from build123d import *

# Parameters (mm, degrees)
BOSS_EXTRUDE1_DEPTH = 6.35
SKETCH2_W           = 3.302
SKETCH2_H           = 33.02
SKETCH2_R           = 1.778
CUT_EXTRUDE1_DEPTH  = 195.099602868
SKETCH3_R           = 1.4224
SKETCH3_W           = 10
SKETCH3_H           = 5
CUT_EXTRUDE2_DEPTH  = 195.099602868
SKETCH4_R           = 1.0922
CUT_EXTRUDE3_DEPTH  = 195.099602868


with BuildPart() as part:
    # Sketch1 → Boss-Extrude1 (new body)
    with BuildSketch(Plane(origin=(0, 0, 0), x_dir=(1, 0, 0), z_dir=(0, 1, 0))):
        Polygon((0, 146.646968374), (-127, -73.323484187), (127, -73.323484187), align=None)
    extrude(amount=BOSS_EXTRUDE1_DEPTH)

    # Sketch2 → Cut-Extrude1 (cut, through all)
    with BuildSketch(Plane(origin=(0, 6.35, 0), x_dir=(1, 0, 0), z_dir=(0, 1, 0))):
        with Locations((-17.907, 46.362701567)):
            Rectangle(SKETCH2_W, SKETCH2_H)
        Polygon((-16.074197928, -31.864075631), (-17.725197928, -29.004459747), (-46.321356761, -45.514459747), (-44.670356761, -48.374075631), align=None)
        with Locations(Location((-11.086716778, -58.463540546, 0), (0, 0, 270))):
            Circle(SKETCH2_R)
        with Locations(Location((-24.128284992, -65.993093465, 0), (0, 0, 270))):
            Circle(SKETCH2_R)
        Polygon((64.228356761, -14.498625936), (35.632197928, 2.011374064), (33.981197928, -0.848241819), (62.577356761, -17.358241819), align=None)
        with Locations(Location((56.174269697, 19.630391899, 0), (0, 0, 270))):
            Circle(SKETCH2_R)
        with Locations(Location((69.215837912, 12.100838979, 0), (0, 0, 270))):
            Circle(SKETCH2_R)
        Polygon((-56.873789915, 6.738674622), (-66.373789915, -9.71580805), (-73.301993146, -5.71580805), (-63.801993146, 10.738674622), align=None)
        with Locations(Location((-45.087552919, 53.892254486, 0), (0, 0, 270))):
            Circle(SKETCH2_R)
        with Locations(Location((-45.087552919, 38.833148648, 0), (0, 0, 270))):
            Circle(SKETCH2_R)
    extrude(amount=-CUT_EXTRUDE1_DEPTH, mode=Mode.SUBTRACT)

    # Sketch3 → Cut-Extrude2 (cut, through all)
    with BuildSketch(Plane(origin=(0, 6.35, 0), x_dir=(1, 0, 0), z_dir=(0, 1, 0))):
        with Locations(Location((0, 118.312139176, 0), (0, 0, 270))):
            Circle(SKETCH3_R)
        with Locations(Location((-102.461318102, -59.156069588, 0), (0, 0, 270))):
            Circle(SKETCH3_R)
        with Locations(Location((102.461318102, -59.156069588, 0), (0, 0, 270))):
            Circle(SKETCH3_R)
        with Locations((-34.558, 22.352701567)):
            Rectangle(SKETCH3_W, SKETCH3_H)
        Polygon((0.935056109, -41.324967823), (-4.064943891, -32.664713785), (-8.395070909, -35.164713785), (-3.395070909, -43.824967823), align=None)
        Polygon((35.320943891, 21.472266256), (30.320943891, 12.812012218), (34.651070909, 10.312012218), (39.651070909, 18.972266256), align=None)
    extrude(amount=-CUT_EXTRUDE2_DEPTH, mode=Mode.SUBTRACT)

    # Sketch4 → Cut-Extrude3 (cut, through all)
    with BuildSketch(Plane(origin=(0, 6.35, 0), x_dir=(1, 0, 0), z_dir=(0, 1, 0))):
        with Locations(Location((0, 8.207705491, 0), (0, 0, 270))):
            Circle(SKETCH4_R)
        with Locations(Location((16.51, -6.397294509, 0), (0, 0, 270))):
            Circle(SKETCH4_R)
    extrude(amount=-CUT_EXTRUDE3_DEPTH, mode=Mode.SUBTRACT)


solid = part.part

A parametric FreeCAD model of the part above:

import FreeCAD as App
import Part
import Sketcher
from FreeCAD import Vector
Q = App.Units.Quantity


def add_polygon(sketch, points):
    """Adds a closed chain of lines whose ends are joined by coincident constraints."""
    first, n = sketch.GeometryCount, len(points)
    for a, b in zip(points, points[1:] + points[:1]):
        sketch.addGeometry(Part.LineSegment(App.Vector(*a, 0), App.Vector(*b, 0)), False)
    for i in range(n):
        sketch.addConstraint(Sketcher.Constraint("Coincident", first + i, 2, first + (i + 1) % n, 1))

doc = App.newDocument("Part")
params = doc.addObject("Spreadsheet::Sheet", "Params")
for row, (alias, value) in enumerate([
    ("sketch1_width", "10 in"),
    ("sketch1_length", "10 in"),
    ("pad1_length", "0.25 in"),
    ("sketch2_diameter", "0.14 in"),
    ("sketch2_height", "1.3 in"),
    ("sketch2_length", "1.3 in"),
    ("sketch2_width", "0.13 in"),
    ("sketch2_length2", "0.13 in"),
    ("sketch3_diameter", "0.112 in"),
    ("sketch4_diameter", "0.086 in"),
], start=1):
    params.set(f"A{row}", alias)
    params.set(f"B{row}", "=" + value)
    params.setAlias(f"B{row}", alias)

body = doc.addObject("PartDesign::Body", "Body")

sketch1 = doc.addObject("Sketcher::SketchObject", "Sketch")
body.addObject(sketch1)
sketch1.AttachmentSupport = (doc.XZ_Plane, [""])
sketch1.MapMode = "FlatFace"
add_polygon(sketch1, [(0, -146.646968), (-127, 73.323484), (127, 73.323484)])
sketch1.addConstraint(Sketcher.Constraint("Horizontal", 1))
sketch1.addConstraint(Sketcher.Constraint("PointOnObject", 2, 2, -2))
sketch1.addConstraint(Sketcher.Constraint("Equal", 0, 2))
sketch1.addConstraint(Sketcher.Constraint("DistanceX", 1, 1, 1, 2, Q("10 in")))
sketch1.addConstraint(Sketcher.Constraint("Distance", 0, Q("10 in")))
sketch1.addConstraint(Sketcher.Constraint("DistanceY", 2, 2, -1, 1, Q("146.646968 mm")))
sketch1.setExpression("Constraints[6]", "Params.sketch1_width")
sketch1.setExpression("Constraints[7]", "Params.sketch1_length")
pad1 = doc.addObject("PartDesign::Pad", "Pad")
body.addObject(pad1)
pad1.Profile = sketch1
pad1.setExpression("Length", "Params.pad1_length")
pad1.Reversed = True

sketch2 = doc.addObject("Sketcher::SketchObject", "Sketch001")
body.addObject(sketch2)
sketch2.AttachmentSupport = (doc.XZ_Plane, [""])
sketch2.MapMode = "FlatFace"
sketch2.AttachmentOffset = App.Placement(Vector(0, 0, -0.25 * 25.4), App.Rotation())
add_polygon(sketch2, [(-19.558, -62.872702), (-19.558, -29.852702), (-16.256, -29.852702), (-16.256, -62.872702)])
add_polygon(sketch2, [(-16.074198, 31.864076), (-17.725198, 29.00446), (-46.321357, 45.51446), (-44.670357, 48.374076)])
sketch2.addGeometry(Part.Circle(Vector(-11.086717, 58.463541, 0), Vector(0, 0, 1), 1.778), False)
sketch2.addGeometry(Part.Circle(Vector(-24.128285, 65.993093, 0), Vector(0, 0, 1), 1.778), False)
add_polygon(sketch2, [(64.228357, 14.498626), (35.632198, -2.011374), (33.981198, 0.848242), (62.577357, 17.358242)])
sketch2.addGeometry(Part.Circle(Vector(56.17427, -19.630392, 0), Vector(0, 0, 1), 1.778), False)
sketch2.addGeometry(Part.Circle(Vector(69.215838, -12.100839, 0), Vector(0, 0, 1), 1.778), False)
add_polygon(sketch2, [(-66.37379, 9.715808), (-56.87379, -6.738675), (-63.801993, -10.738675), (-73.301993, 5.715808)])
sketch2.addGeometry(Part.Circle(Vector(-45.087553, -53.892254, 0), Vector(0, 0, 1), 1.778), False)
sketch2.addGeometry(Part.Circle(Vector(-45.087553, -38.833149, 0), Vector(0, 0, 1), 1.778), False)
sketch2.addConstraint(Sketcher.Constraint("Vertical", 0))
sketch2.addConstraint(Sketcher.Constraint("Horizontal", 1))
sketch2.addConstraint(Sketcher.Constraint("Vertical", 2))
sketch2.addConstraint(Sketcher.Constraint("Horizontal", 3))
sketch2.addConstraint(Sketcher.Constraint("Equal", 8, 9))
sketch2.addConstraint(Sketcher.Constraint("Equal", 9, 14))
sketch2.addConstraint(Sketcher.Constraint("Equal", 14, 15))
sketch2.addConstraint(Sketcher.Constraint("Equal", 15, 20))
sketch2.addConstraint(Sketcher.Constraint("Equal", 20, 21))
sketch2.addConstraint(Sketcher.Constraint("Perpendicular", 4, 5))
sketch2.addConstraint(Sketcher.Constraint("Perpendicular", 5, 6))
sketch2.addConstraint(Sketcher.Constraint("Perpendicular", 6, 7))
sketch2.addConstraint(Sketcher.Constraint("Perpendicular", 10, 11))
sketch2.addConstraint(Sketcher.Constraint("Perpendicular", 11, 12))
sketch2.addConstraint(Sketcher.Constraint("Perpendicular", 12, 13))
sketch2.addConstraint(Sketcher.Constraint("Parallel", 13, 16))
sketch2.addConstraint(Sketcher.Constraint("Perpendicular", 16, 17))
sketch2.addConstraint(Sketcher.Constraint("Perpendicular", 17, 18))
sketch2.addConstraint(Sketcher.Constraint("Perpendicular", 18, 19))
sketch2.addConstraint(Sketcher.Constraint("Vertical", 20, 3, 21, 3))
sketch2.addConstraint(Sketcher.Constraint("Equal", 7, 10))
sketch2.addConstraint(Sketcher.Constraint("Equal", 6, 11))
sketch2.addConstraint(Sketcher.Constraint("Diameter", 8, Q("0.14 in")))
sketch2.addConstraint(Sketcher.Constraint("DistanceY", 0, 1, 0, 2, Q("1.3 in")))
sketch2.addConstraint(Sketcher.Constraint("Angle", 4, Q("-120 deg")))
sketch2.addConstraint(Sketcher.Constraint("Angle", 10, Q("-150 deg")))
sketch2.addConstraint(Sketcher.Constraint("Distance", 5, Q("1.3 in")))
sketch2.addConstraint(Sketcher.Constraint("DistanceX", 1, 1, 1, 2, Q("0.13 in")))
sketch2.addConstraint(Sketcher.Constraint("Distance", 4, Q("0.13 in")))
sketch2.addConstraint(Sketcher.Constraint("DistanceX", 0, 2, -1, 1, Q("0.77 in")))
sketch2.addConstraint(Sketcher.Constraint("Distance", 16, Q("19 mm")))
sketch2.addConstraint(Sketcher.Constraint("Distance", 17, Q("8 mm")))
sketch2.addConstraint(Sketcher.Constraint("DistanceY", 0, 2, -1, 1, Q("29.852702 mm")))
sketch2.addConstraint(Sketcher.Constraint("DistanceY", -1, 1, 8, 3, Q("58.463541 mm")))
sketch2.addConstraint(Sketcher.Constraint("DistanceX", -1, 1, 14, 3, Q("56.17427 mm")))
sketch2.addConstraint(Sketcher.Constraint("DistanceY", 14, 3, -1, 1, Q("19.630392 mm")))
sketch2.addConstraint(Sketcher.Constraint("DistanceY", 15, 3, -1, 1, Q("12.100839 mm")))
sketch2.addConstraint(Sketcher.Constraint("DistanceY", 21, 3, -1, 1, Q("38.833149 mm")))
sketch2.addConstraint(Sketcher.Constraint("DistanceY", -1, 1, 4, 2, Q("29.00446 mm")))
sketch2.addConstraint(Sketcher.Constraint("DistanceY", -1, 1, 11, 2, Q("0.848242 mm")))
sketch2.addConstraint(Sketcher.Constraint("DistanceX", 16, 2, -1, 1, Q("56.87379 mm")))
sketch2.addConstraint(Sketcher.Constraint("DistanceY", -1, 1, 18, 2, Q("5.715808 mm")))
sketch2.addConstraint(Sketcher.Constraint("DistanceX", 9, 3, 8, 3, Q("13.041568 mm")))
sketch2.addConstraint(Sketcher.Constraint("DistanceX", 14, 3, 15, 3, Q("13.041568 mm")))
sketch2.addConstraint(Sketcher.Constraint("DistanceX", 20, 3, 15, 3, Q("114.303391 mm")))
sketch2.addConstraint(Sketcher.Constraint("DistanceX", 4, 2, 8, 3, Q("6.638481 mm")))
sketch2.addConstraint(Sketcher.Constraint("DistanceX", 10, 2, 14, 3, Q("20.542072 mm")))
sketch2.addConstraint(Sketcher.Constraint("DistanceY", 20, 3, 16, 2, Q("47.15358 mm")))
sketch2.addConstraint(Sketcher.Constraint("DistanceX", 16, 2, 4, 2, Q("39.148592 mm")))
sketch2.addConstraint(Sketcher.Constraint("DistanceY", -1, 1, 9, 3, Q("65.993093 mm")))
sketch2.setExpression("Constraints[38]", "Params.sketch2_diameter")
sketch2.setExpression("Constraints[39]", "Params.sketch2_height")
sketch2.setExpression("Constraints[42]", "Params.sketch2_length")
sketch2.setExpression("Constraints[43]", "Params.sketch2_width")
sketch2.setExpression("Constraints[44]", "Params.sketch2_length2")
pocket1 = doc.addObject("PartDesign::Pocket", "Pocket")
body.addObject(pocket1)
pocket1.Profile = sketch2
pocket1.Type = "ThroughAll"
pocket1.Reversed = True

sketch3 = doc.addObject("Sketcher::SketchObject", "Sketch002")
body.addObject(sketch3)
sketch3.AttachmentSupport = (doc.XZ_Plane, [""])
sketch3.MapMode = "FlatFace"
sketch3.AttachmentOffset = App.Placement(Vector(0, 0, -0.25 * 25.4), App.Rotation())
sketch3.addGeometry(Part.Circle(Vector(0, -118.312139, 0), Vector(0, 0, 1), 1.4224), False)
sketch3.addGeometry(Part.Circle(Vector(-102.461318, 59.15607, 0), Vector(0, 0, 1), 1.4224), False)
sketch3.addGeometry(Part.Circle(Vector(102.461318, 59.15607, 0), Vector(0, 0, 1), 1.4224), False)
add_polygon(sketch3, [(-39.558, -24.852702), (-39.558, -19.852702), (-29.558, -19.852702), (-29.558, -24.852702)])
add_polygon(sketch3, [(0.935056, 41.324968), (-4.064944, 32.664714), (-8.395071, 35.164714), (-3.395071, 43.824968)])
add_polygon(sketch3, [(35.320944, -21.472266), (30.320944, -12.812012), (34.651071, -10.312012), (39.651071, -18.972266)])
sketch3.addConstraint(Sketcher.Constraint("Vertical", 3))
sketch3.addConstraint(Sketcher.Constraint("Horizontal", 4))
sketch3.addConstraint(Sketcher.Constraint("Vertical", 5))
sketch3.addConstraint(Sketcher.Constraint("Horizontal", 6))
sketch3.addConstraint(Sketcher.Constraint("Equal", 0, 1))
sketch3.addConstraint(Sketcher.Constraint("Equal", 1, 2))
sketch3.addConstraint(Sketcher.Constraint("Symmetric", 1, 3, 2, 3, -2))
sketch3.addConstraint(Sketcher.Constraint("PointOnObject", 0, 3, -2))
sketch3.addConstraint(Sketcher.Constraint("Perpendicular", 7, 8))
sketch3.addConstraint(Sketcher.Constraint("Perpendicular", 8, 9))
sketch3.addConstraint(Sketcher.Constraint("Perpendicular", 9, 10))
sketch3.addConstraint(Sketcher.Constraint("Perpendicular", 11, 12))
sketch3.addConstraint(Sketcher.Constraint("Perpendicular", 12, 13))
sketch3.addConstraint(Sketcher.Constraint("Perpendicular", 13, 14))
sketch3.addConstraint(Sketcher.Constraint("Equal", 9, 11))
sketch3.addConstraint(Sketcher.Constraint("Equal", 10, 12))
sketch3.addConstraint(Sketcher.Constraint("Diameter", 0, Q("0.112 in")))
sketch3.addConstraint(Sketcher.Constraint("Angle", 7, Q("-120 deg")))
sketch3.addConstraint(Sketcher.Constraint("Angle", 11, Q("120 deg")))
sketch3.addConstraint(Sketcher.Constraint("DistanceX", 4, 1, 4, 2, Q("10 mm")))
sketch3.addConstraint(Sketcher.Constraint("DistanceY", 3, 1, 3, 2, Q("5 mm")))
sketch3.addConstraint(Sketcher.Constraint("Distance", 7, Q("10 mm")))
sketch3.addConstraint(Sketcher.Constraint("Distance", 8, Q("5 mm")))
sketch3.addConstraint(Sketcher.Constraint("DistanceX", 3, 2, -1, 1, Q("39.558 mm")))
sketch3.addConstraint(Sketcher.Constraint("DistanceY", 3, 2, -1, 1, Q("19.852702 mm")))
sketch3.addConstraint(Sketcher.Constraint("DistanceY", 0, 3, -1, 1, Q("118.312139 mm")))
sketch3.addConstraint(Sketcher.Constraint("DistanceX", 1, 3, -1, 1, Q("102.461318 mm")))
sketch3.addConstraint(Sketcher.Constraint("DistanceY", -1, 1, 1, 3, Q("59.15607 mm")))
sketch3.addConstraint(Sketcher.Constraint("DistanceX", 8, 2, -1, 1, Q("8.395071 mm")))
sketch3.addConstraint(Sketcher.Constraint("DistanceX", -1, 1, 12, 2, Q("34.651071 mm")))
sketch3.addConstraint(Sketcher.Constraint("DistanceY", 4, 2, 9, 2, Q("63.677669 mm")))
sketch3.addConstraint(Sketcher.Constraint("DistanceY", 4, 2, 11, 2, Q("7.040689 mm")))
sketch3.setExpression("Constraints[28]", "Params.sketch3_diameter")
pocket2 = doc.addObject("PartDesign::Pocket", "Pocket001")
body.addObject(pocket2)
pocket2.Profile = sketch3
pocket2.Type = "ThroughAll"
pocket2.Reversed = True

sketch4 = doc.addObject("Sketcher::SketchObject", "Sketch003")
body.addObject(sketch4)
sketch4.AttachmentSupport = (doc.XZ_Plane, [""])
sketch4.MapMode = "FlatFace"
sketch4.AttachmentOffset = App.Placement(Vector(0, 0, -0.25 * 25.4), App.Rotation())
sketch4.addGeometry(Part.Circle(Vector(0, -8.207705, 0), Vector(0, 0, 1), 1.0922), False)
sketch4.addGeometry(Part.Circle(Vector(16.51, 6.397295, 0), Vector(0, 0, 1), 1.0922), False)
sketch4.addConstraint(Sketcher.Constraint("Equal", 0, 1))
sketch4.addConstraint(Sketcher.Constraint("PointOnObject", 0, 3, -2))
sketch4.addConstraint(Sketcher.Constraint("Diameter", 0, Q("0.086 in")))
sketch4.addConstraint(Sketcher.Constraint("DistanceX", -1, 1, 1, 3, Q("0.65 in")))
sketch4.addConstraint(Sketcher.Constraint("DistanceY", 0, 3, 1, 3, Q("0.575 in")))
sketch4.addConstraint(Sketcher.Constraint("DistanceY", 0, 3, -1, 1, Q("8.207705 mm")))
sketch4.setExpression("Constraints[2]", "Params.sketch4_diameter")
pocket3 = doc.addObject("PartDesign::Pocket", "Pocket002")
body.addObject(pocket3)
pocket3.Profile = sketch4
pocket3.Type = "ThroughAll"
pocket3.Reversed = True

doc.recompute()
